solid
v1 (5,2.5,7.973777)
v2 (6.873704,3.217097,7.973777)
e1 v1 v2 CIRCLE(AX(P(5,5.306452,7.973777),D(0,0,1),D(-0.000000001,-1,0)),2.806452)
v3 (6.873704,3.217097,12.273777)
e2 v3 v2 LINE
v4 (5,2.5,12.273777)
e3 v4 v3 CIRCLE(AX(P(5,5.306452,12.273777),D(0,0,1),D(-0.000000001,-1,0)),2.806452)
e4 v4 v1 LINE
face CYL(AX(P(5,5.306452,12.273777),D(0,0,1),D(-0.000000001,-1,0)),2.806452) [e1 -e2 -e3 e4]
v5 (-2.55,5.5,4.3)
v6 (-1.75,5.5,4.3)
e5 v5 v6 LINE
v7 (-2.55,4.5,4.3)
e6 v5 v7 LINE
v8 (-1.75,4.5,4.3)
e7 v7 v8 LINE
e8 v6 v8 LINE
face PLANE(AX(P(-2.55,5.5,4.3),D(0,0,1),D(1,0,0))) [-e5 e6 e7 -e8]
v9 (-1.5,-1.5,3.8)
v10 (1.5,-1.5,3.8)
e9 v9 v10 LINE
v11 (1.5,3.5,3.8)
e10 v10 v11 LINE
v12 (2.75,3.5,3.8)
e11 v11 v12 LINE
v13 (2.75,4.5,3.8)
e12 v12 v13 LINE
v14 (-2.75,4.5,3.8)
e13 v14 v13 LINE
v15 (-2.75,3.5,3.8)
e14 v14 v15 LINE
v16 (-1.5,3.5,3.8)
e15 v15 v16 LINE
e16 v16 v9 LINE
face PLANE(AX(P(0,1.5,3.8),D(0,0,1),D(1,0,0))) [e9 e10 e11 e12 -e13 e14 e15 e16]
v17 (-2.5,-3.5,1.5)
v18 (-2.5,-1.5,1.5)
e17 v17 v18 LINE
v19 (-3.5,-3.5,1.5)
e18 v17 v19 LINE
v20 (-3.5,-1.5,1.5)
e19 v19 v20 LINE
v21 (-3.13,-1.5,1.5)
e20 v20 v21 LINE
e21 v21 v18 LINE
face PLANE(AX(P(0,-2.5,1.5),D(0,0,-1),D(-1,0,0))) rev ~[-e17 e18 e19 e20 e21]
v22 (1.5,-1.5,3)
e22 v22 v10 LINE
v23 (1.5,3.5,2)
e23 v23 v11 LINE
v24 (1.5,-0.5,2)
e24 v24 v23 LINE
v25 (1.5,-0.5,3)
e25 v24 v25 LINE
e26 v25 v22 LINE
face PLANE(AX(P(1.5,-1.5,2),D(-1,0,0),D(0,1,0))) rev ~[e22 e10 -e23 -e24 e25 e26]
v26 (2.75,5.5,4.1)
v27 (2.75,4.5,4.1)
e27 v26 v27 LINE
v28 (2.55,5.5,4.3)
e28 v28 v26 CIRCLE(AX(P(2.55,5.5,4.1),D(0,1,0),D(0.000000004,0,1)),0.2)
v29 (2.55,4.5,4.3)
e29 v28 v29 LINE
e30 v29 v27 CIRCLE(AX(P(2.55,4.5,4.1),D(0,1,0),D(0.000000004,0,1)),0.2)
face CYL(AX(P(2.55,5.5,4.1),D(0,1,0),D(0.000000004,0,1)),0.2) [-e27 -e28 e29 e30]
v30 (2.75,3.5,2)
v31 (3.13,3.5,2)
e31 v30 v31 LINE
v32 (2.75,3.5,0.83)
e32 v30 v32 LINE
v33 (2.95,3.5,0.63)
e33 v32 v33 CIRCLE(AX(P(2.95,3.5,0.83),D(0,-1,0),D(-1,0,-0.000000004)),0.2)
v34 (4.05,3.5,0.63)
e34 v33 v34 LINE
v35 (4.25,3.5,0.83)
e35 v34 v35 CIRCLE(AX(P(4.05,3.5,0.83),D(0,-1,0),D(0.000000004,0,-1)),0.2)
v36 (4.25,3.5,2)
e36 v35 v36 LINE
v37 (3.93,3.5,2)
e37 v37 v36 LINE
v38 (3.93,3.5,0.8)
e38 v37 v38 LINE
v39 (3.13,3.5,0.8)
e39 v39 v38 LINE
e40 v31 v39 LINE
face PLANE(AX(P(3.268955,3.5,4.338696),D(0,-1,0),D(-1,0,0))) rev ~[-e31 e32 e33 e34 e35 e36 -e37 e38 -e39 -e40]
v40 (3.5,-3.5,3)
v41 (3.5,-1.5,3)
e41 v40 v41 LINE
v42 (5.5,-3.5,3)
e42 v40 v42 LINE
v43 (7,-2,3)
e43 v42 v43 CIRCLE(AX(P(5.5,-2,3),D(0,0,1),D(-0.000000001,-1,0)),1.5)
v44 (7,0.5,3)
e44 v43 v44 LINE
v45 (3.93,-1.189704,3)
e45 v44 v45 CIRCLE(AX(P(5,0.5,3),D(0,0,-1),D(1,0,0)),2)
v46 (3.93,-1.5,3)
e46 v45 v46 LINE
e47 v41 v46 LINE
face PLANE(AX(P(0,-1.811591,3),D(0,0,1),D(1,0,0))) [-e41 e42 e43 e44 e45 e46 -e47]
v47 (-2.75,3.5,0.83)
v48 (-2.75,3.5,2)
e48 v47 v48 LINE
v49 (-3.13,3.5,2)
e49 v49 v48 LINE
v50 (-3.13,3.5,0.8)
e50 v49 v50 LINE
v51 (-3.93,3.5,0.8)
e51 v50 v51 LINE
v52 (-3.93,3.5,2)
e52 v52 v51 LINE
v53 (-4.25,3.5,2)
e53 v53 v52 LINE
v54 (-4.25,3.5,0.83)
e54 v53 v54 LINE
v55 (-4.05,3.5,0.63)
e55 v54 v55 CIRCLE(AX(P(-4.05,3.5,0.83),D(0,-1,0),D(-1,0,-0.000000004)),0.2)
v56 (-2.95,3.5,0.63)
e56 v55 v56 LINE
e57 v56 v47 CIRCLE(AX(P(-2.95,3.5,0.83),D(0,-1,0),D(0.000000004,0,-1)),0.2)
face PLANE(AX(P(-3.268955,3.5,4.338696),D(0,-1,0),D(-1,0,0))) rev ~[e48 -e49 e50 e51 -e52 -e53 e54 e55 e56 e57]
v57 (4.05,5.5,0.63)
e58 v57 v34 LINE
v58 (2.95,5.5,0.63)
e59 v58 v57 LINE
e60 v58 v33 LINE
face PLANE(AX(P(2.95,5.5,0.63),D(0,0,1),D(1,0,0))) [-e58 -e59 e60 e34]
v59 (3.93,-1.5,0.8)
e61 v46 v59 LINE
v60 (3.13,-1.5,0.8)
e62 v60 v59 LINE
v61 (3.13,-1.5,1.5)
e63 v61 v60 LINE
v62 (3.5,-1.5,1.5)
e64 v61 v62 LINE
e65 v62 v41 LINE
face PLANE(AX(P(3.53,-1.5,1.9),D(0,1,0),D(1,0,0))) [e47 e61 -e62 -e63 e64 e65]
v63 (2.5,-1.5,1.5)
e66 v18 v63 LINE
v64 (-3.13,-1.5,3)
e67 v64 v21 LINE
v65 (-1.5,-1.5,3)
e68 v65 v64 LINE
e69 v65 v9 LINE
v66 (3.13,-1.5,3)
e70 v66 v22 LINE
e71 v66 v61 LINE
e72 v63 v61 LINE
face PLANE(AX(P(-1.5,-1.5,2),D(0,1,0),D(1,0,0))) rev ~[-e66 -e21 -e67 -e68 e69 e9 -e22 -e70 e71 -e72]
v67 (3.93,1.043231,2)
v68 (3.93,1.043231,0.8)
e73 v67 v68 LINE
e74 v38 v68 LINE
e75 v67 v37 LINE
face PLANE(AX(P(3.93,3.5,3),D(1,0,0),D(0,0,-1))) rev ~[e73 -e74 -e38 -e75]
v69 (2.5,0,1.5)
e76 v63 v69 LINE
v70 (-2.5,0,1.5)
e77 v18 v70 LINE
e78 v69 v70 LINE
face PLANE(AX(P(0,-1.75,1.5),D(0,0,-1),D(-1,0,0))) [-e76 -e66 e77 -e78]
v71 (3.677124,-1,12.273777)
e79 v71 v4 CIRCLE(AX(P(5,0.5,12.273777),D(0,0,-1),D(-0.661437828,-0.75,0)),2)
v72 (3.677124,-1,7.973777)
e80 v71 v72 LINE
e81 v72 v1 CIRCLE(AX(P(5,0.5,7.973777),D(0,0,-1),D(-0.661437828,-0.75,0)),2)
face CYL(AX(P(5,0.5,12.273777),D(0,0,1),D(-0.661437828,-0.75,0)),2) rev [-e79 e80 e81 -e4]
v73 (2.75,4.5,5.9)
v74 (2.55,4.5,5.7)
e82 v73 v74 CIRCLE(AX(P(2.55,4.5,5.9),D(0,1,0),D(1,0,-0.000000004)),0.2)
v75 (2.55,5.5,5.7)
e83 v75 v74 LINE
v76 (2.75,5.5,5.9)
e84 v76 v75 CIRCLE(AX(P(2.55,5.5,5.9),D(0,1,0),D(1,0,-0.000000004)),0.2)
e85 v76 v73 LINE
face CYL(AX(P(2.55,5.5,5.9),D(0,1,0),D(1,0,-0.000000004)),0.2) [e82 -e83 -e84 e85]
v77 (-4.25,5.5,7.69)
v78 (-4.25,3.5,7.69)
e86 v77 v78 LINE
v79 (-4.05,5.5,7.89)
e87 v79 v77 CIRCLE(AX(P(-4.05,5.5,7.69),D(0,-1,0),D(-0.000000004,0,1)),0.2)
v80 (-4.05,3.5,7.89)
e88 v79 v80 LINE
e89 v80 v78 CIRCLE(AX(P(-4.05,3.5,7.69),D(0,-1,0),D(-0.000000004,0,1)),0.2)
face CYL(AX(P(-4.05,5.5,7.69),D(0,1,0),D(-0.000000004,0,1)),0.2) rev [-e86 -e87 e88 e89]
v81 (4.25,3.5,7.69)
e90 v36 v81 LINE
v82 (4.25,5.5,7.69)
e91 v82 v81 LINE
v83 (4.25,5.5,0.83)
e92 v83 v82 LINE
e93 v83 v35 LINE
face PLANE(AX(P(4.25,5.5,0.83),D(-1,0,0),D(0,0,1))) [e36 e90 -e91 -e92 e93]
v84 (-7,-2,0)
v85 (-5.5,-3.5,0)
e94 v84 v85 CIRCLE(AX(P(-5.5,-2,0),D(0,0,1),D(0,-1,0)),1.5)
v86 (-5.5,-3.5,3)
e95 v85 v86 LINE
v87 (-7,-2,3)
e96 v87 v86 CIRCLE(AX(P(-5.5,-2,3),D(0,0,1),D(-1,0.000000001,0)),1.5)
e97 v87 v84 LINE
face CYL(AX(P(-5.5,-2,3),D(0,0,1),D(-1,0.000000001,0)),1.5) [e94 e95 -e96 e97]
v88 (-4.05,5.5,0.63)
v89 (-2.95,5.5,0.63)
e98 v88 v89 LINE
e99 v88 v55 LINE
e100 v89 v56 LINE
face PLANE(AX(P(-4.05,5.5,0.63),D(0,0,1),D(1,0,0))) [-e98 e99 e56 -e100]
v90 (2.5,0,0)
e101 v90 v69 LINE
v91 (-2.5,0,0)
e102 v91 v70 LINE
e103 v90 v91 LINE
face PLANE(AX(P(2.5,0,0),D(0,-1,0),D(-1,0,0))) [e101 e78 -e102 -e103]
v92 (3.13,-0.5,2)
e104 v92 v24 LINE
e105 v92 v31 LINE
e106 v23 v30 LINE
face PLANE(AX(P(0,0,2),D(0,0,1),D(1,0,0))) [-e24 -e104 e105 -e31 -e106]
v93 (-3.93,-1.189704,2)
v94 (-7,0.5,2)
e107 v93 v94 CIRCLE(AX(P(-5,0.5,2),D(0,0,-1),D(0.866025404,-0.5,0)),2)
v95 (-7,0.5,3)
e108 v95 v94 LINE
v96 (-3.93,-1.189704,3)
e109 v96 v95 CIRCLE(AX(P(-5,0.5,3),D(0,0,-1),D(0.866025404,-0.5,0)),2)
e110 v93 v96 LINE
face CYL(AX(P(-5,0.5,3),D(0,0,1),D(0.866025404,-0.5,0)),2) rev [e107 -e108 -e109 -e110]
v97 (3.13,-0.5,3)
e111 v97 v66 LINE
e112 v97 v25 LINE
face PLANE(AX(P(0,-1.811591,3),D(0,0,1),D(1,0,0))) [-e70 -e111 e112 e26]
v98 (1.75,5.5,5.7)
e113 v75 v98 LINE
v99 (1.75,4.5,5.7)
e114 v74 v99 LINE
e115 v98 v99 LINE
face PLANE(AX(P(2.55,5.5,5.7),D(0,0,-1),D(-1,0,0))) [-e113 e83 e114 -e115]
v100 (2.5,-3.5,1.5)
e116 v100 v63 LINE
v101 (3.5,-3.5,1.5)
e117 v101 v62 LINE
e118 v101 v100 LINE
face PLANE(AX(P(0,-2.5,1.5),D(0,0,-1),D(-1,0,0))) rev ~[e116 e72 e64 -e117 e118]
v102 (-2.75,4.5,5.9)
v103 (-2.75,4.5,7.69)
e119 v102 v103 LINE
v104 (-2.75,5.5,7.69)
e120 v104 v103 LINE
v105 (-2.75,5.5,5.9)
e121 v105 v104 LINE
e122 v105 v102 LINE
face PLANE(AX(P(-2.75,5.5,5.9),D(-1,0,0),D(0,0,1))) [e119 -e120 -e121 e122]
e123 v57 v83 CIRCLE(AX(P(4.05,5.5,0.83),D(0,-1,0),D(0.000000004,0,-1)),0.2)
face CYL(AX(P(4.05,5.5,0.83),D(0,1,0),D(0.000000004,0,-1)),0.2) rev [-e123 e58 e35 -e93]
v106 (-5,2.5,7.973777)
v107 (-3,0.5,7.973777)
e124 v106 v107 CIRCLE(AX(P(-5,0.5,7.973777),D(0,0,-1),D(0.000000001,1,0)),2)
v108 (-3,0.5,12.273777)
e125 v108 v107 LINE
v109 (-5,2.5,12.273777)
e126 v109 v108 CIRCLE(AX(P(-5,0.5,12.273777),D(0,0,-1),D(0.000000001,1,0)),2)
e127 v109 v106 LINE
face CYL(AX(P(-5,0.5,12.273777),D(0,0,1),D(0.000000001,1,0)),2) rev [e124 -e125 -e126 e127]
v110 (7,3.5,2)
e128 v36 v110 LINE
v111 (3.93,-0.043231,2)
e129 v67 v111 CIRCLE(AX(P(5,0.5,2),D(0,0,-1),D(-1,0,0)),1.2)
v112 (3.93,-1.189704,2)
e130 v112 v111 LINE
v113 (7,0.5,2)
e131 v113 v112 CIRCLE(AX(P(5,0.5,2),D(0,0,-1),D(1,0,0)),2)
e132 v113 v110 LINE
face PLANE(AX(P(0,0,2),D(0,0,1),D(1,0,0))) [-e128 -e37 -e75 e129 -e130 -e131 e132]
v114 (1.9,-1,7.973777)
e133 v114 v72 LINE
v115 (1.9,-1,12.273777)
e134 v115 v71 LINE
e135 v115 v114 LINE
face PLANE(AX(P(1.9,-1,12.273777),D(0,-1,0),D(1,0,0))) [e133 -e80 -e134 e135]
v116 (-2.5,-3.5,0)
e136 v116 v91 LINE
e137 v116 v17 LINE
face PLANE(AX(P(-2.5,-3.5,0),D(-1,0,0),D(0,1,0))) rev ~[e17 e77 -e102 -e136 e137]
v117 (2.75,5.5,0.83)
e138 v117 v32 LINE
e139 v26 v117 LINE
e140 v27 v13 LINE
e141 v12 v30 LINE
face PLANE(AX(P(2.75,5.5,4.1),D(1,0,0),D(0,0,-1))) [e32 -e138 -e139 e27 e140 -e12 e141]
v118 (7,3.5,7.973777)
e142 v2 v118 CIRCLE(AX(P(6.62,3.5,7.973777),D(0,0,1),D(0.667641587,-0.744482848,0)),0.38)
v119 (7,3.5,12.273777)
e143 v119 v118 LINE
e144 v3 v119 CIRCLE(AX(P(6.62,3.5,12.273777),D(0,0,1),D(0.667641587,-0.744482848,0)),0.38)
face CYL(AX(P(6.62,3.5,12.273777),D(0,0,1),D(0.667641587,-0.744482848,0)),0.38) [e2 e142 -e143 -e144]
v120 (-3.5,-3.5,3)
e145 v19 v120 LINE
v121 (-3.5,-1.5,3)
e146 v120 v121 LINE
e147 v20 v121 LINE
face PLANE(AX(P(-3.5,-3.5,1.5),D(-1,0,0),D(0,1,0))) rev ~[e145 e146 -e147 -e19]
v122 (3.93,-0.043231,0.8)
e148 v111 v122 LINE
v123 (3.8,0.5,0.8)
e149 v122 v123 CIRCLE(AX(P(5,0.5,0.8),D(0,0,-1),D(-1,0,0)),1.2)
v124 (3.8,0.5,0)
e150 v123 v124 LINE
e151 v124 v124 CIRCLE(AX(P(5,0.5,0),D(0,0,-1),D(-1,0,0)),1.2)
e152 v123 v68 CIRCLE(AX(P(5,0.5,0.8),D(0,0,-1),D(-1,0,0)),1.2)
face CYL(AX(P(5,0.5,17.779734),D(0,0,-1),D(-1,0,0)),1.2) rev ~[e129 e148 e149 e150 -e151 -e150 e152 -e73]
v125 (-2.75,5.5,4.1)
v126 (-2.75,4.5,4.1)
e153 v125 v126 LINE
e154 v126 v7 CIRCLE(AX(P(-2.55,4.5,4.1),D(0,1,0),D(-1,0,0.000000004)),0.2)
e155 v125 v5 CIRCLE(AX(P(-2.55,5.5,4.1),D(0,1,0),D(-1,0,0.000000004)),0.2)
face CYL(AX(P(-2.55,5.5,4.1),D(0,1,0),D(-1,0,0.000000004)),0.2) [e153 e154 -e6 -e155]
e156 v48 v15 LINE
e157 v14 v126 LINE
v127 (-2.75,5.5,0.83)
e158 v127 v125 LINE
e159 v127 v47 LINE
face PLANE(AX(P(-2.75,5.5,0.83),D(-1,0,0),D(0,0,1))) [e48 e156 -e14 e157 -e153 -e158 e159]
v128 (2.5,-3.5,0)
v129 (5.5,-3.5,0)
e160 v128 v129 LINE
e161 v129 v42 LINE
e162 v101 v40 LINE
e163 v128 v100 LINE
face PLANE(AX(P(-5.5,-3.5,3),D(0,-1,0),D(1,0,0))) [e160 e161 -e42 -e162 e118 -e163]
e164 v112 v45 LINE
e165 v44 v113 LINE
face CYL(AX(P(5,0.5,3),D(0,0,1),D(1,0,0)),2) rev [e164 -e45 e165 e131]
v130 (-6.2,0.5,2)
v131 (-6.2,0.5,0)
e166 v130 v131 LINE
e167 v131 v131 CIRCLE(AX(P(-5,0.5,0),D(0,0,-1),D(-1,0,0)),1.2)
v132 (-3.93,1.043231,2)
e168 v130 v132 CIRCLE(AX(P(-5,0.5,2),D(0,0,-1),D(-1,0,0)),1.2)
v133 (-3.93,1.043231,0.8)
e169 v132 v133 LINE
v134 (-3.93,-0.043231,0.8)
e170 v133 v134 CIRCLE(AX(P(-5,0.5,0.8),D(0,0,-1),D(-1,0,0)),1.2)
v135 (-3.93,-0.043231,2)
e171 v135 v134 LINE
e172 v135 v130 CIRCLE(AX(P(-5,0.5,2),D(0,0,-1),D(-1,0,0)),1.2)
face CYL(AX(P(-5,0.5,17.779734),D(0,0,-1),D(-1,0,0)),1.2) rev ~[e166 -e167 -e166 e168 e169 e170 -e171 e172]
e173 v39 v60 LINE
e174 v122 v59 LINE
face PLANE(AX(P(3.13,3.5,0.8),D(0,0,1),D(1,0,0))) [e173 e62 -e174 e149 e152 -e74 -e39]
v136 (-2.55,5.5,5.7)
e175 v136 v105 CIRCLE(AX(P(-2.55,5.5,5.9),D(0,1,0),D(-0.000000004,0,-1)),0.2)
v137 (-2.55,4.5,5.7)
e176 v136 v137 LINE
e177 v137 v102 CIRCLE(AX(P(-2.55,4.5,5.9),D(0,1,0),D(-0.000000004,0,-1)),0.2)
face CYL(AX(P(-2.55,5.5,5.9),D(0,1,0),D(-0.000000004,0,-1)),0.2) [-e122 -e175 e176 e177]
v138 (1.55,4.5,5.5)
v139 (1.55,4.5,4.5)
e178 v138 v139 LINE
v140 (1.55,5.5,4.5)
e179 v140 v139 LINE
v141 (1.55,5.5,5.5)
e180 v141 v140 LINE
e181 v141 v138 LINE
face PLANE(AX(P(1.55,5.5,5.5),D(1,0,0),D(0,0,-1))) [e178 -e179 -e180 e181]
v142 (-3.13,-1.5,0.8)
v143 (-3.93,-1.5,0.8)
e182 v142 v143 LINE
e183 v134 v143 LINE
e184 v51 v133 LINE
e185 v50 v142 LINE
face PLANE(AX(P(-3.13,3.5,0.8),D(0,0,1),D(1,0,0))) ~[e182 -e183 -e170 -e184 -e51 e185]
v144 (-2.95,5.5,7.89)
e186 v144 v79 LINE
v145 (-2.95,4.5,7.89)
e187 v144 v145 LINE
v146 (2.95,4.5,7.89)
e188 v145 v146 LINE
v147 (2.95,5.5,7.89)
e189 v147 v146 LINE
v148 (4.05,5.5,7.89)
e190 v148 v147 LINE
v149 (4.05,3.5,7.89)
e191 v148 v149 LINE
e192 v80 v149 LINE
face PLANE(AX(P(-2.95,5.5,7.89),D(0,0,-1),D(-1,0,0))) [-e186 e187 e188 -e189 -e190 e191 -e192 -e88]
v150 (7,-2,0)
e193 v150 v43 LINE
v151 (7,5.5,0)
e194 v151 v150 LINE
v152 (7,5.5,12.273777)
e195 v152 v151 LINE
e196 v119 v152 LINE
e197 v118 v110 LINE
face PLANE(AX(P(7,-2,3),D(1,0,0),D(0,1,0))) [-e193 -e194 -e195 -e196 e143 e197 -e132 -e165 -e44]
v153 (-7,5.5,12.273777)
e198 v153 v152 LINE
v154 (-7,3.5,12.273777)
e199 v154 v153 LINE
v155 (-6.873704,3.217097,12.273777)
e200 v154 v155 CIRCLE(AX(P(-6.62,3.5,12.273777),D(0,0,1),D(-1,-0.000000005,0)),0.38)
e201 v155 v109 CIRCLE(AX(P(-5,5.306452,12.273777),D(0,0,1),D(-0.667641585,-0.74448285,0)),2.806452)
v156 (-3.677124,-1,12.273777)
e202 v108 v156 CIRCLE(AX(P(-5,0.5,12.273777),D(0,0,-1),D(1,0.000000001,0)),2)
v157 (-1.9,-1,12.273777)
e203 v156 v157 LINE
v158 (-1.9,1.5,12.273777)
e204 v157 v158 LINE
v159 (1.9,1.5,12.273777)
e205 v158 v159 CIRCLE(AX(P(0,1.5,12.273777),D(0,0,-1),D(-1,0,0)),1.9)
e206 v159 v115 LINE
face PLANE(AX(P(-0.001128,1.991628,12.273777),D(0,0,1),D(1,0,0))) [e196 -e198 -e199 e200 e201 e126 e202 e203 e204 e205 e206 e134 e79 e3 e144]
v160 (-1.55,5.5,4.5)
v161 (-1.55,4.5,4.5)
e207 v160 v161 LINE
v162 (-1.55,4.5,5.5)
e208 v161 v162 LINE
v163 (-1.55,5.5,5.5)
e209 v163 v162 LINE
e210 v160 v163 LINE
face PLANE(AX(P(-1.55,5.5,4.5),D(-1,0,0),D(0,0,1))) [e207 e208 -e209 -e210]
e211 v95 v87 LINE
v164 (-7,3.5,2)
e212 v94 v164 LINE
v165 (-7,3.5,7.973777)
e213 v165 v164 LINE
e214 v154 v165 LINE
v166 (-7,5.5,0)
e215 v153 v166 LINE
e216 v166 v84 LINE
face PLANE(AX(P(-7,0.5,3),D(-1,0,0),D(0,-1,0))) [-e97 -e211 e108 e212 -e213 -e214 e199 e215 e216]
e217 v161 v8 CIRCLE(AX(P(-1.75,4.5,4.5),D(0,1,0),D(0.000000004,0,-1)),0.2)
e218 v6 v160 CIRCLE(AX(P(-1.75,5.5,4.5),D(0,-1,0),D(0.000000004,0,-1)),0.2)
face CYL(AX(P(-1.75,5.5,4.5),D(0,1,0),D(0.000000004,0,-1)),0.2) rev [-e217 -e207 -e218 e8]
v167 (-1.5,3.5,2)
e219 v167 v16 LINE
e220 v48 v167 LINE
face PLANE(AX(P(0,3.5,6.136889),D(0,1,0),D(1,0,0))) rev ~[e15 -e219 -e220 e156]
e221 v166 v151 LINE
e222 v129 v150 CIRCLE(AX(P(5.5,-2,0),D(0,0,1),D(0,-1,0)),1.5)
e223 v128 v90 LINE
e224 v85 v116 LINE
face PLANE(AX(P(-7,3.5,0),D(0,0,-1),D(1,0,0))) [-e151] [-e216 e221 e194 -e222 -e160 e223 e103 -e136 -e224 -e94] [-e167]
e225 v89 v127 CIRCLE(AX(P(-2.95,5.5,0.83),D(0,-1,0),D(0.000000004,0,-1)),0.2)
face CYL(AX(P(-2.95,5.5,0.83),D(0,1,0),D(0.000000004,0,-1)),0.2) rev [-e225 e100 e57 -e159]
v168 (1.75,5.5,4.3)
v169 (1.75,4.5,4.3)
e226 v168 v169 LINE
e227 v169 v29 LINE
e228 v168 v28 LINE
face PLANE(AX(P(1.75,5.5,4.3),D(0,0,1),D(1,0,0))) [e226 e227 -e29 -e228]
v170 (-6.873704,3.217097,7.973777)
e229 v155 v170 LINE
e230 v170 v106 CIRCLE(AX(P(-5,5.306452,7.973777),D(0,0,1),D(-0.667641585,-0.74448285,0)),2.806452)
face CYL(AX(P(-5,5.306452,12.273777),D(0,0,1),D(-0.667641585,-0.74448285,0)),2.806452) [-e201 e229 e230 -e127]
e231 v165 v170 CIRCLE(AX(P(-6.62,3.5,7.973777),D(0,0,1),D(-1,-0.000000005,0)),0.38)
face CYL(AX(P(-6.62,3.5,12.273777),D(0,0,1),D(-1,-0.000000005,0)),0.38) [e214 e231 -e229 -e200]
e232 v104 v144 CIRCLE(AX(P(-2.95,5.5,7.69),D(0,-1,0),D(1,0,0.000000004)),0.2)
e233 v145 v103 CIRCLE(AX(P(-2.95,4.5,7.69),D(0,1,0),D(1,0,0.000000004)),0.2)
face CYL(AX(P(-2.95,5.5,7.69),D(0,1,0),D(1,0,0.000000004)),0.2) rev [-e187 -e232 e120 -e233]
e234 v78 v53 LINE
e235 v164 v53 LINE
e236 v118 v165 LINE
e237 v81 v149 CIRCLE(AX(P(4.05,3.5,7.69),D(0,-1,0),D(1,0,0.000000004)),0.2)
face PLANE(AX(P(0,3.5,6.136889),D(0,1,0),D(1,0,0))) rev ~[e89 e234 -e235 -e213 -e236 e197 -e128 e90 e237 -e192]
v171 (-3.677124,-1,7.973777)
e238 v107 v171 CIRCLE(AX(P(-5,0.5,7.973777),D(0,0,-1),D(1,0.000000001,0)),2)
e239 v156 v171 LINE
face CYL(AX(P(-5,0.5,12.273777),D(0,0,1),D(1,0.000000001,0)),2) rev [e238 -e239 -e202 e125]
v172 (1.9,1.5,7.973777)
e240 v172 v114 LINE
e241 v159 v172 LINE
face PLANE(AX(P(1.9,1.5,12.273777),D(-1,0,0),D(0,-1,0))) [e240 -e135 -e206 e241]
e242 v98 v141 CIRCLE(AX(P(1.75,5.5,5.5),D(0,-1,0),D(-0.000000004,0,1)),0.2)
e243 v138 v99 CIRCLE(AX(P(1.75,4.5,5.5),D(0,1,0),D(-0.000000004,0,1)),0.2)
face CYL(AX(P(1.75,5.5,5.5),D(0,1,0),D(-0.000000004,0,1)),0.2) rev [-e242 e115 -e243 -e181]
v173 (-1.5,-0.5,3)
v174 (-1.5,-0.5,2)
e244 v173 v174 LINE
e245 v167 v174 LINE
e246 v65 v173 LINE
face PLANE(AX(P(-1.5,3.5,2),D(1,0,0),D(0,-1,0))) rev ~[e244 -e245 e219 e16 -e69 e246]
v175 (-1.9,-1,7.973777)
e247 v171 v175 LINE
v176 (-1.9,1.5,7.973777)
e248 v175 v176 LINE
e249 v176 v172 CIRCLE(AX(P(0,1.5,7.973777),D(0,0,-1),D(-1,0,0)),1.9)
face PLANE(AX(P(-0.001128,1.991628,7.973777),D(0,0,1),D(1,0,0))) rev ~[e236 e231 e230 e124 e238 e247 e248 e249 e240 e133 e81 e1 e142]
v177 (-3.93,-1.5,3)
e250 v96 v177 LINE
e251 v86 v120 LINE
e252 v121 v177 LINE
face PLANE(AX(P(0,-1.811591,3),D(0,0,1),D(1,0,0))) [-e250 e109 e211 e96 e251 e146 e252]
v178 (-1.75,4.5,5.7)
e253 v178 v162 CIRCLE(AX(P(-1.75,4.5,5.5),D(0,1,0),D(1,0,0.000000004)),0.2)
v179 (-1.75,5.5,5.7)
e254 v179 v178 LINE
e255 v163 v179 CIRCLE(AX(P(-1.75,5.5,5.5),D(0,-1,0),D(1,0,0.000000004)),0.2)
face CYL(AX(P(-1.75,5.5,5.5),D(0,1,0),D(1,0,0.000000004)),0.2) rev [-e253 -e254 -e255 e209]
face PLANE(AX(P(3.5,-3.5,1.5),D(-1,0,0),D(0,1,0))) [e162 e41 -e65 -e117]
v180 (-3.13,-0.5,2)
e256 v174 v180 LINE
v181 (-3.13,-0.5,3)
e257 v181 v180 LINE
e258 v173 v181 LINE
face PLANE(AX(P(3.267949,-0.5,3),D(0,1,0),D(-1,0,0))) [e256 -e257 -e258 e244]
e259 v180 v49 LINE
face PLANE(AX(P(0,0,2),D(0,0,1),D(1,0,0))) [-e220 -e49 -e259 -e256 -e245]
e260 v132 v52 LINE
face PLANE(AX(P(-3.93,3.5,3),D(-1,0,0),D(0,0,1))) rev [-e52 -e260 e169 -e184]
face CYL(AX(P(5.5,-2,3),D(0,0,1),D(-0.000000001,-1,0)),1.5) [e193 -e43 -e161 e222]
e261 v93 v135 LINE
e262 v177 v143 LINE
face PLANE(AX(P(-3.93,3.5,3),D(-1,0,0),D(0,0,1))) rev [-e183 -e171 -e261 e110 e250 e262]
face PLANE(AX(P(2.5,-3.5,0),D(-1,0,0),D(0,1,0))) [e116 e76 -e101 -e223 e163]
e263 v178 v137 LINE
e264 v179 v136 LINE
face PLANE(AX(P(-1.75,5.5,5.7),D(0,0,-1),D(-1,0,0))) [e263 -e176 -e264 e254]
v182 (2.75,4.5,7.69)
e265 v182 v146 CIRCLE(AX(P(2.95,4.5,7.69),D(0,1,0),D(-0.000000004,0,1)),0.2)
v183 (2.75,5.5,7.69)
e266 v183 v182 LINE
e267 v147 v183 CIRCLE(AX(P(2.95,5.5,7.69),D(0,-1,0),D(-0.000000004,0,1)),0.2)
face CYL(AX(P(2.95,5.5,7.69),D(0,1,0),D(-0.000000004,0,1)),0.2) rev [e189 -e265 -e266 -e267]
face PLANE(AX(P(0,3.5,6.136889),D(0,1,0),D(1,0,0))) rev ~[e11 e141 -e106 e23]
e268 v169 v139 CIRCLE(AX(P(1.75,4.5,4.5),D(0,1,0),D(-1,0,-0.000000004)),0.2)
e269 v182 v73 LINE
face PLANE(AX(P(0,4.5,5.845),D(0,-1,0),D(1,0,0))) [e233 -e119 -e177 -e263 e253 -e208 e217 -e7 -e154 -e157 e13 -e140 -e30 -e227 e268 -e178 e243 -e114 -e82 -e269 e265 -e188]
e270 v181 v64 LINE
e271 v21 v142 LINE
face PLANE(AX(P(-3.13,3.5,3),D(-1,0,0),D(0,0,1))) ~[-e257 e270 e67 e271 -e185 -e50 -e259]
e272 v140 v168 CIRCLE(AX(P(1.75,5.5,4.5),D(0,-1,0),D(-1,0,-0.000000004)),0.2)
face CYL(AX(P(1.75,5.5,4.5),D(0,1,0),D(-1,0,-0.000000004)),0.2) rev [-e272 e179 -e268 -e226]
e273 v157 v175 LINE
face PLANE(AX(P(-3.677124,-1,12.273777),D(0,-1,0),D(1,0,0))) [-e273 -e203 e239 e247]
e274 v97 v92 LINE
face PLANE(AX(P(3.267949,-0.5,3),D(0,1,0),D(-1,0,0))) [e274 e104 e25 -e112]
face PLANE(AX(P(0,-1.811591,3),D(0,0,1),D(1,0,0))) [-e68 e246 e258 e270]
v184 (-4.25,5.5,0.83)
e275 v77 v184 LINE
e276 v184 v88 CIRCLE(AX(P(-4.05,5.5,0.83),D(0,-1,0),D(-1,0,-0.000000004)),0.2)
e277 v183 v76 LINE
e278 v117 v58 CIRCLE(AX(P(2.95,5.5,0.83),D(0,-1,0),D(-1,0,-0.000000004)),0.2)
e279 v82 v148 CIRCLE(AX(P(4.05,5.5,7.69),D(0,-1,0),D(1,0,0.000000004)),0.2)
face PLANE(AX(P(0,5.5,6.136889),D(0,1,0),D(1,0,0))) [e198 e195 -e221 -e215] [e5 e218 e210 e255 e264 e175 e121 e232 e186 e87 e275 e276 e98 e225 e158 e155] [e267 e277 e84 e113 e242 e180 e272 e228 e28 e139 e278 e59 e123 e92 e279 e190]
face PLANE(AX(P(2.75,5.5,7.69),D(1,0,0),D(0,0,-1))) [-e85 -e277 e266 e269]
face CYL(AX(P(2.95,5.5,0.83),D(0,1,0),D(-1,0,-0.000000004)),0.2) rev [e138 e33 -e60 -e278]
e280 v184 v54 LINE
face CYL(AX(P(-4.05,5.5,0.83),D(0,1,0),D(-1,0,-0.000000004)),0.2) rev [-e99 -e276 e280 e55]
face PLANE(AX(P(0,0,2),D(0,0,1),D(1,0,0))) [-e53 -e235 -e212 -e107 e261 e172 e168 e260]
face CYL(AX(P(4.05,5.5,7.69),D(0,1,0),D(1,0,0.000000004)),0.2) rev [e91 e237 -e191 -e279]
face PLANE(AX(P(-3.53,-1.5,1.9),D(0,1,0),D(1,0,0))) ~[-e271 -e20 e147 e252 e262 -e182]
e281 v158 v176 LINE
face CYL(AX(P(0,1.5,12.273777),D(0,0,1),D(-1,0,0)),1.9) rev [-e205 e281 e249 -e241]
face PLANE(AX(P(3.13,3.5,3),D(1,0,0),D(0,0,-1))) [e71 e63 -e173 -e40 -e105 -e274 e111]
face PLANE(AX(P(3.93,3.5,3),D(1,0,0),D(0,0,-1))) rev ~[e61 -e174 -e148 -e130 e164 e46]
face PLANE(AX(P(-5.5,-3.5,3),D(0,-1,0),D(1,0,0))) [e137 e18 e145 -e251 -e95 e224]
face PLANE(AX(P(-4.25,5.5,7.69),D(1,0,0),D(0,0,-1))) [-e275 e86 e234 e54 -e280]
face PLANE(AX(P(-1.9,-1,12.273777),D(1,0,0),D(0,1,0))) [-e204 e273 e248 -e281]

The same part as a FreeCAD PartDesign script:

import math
import FreeCAD as App
import Part
import Sketcher
from FreeCAD import Vector


def edges_at(feature, points):
    """Names of the edges that pass closest to the given points."""
    edges = feature.Shape.Edges
    near = lambda p: min(range(len(edges)), key=lambda i: edges[i].distToShape(Part.Vertex(*p))[0])
    return sorted({f"Edge{near(p) + 1}" for p in points})

doc = App.newDocument("Part")
body = doc.addObject("PartDesign::Body", "Body")

sketch1 = body.newObject("Sketcher::SketchObject", "Sketch")
sketch1.AttachmentSupport = (doc.getObject("XY_Plane"), [""])
sketch1.MapMode = "FlatFace"
sketch1.addGeometry([
    Part.LineSegment(Vector(-7, 3.5, 0), Vector(-7, -3.5, 0)),
    Part.LineSegment(Vector(-7, -3.5, 0), Vector(7, -3.5, 0)),
    Part.LineSegment(Vector(7, -3.5, 0), Vector(7, 3.5, 0)),
    Part.LineSegment(Vector(7, 3.5, 0), Vector(-7, 3.5, 0)),
], False)
sketch1.addConstraint([
    Sketcher.Constraint("Coincident", 0, 2, 1, 1),
    Sketcher.Constraint("Coincident", 1, 2, 2, 1),
    Sketcher.Constraint("Coincident", 2, 2, 3, 1),
    Sketcher.Constraint("Coincident", 3, 2, 0, 1),
    Sketcher.Constraint("Vertical", 0),
    Sketcher.Constraint("Horizontal", 1),
    Sketcher.Constraint("Vertical", 2),
    Sketcher.Constraint("Horizontal", 3),
    Sketcher.Constraint("Symmetric", 0, 2, 2, 2, -1, 1),
    Sketcher.Constraint("DistanceX", 1, 1, 1, 2, 14.0),
    Sketcher.Constraint("DistanceY", 0, 2, 0, 1, 7.0),
])
pad1 = body.newObject("PartDesign::Pad", "Pad")
pad1.Profile = sketch1
pad1.Length = 2
doc.recompute()

fillet = body.newObject("PartDesign::Fillet", "Fillet")
fillet.Base = (pad1, edges_at(pad1, [(7, -3.5, 1), (-7, -3.5, 1)]))
fillet.Radius = 1.5

sketch2 = body.newObject("Sketcher::SketchObject", "Sketch001")
sketch2.AttachmentSupport = (doc.getObject("XY_Plane"), [""])
sketch2.MapMode = "FlatFace"
sketch2.AttachmentOffset = App.Placement(Vector(0, 0, 2), App.Rotation())
sketch2.addGeometry([
    Part.Circle(Vector(-5, 0.5, 0), Vector(0, 0, 1), 1.2),
    Part.Circle(Vector(5, 0.5, 0), Vector(0, 0, 1), 1.2),
], False)
sketch2.addConstraint([
    Sketcher.Constraint("Equal", 0, 1),
    Sketcher.Constraint("Symmetric", 0, 3, 1, 3, -2),
    Sketcher.Constraint("Diameter", 0, 2.4),
    Sketcher.Constraint("DistanceX", 0, 3, -1, 1, 5.0),
    Sketcher.Constraint("DistanceY", -1, 1, 0, 3, 0.5),
])
doc.recompute()
hole = body.newObject("PartDesign::Hole", "Hole")
hole.Profile = sketch2
hole.ThreadType = "None"
hole.Diameter = 2.4
hole.DepthType = "ThroughAll"

sketch3 = body.newObject("Sketcher::SketchObject", "Sketch002")
sketch3.AttachmentSupport = (doc.getObject("XZ_Plane"), [""])
sketch3.MapMode = "FlatFace"
sketch3.AttachmentOffset = App.Placement(Vector(0, 0, -3.5), App.Rotation())
sketch3.addGeometry([
    Part.LineSegment(Vector(-7, 0, 0), Vector(-7, 12.273777, 0)),
    Part.LineSegment(Vector(-7, 12.273777, 0), Vector(7, 12.273777, 0)),
    Part.LineSegment(Vector(7, 12.273777, 0), Vector(7, 0, 0)),
    Part.LineSegment(Vector(7, 0, 0), Vector(-7, 0, 0)),
], False)
sketch3.addConstraint([
    Sketcher.Constraint("Coincident", 0, 2, 1, 1),
    Sketcher.Constraint("Coincident", 1, 2, 2, 1),
    Sketcher.Constraint("Coincident", 2, 2, 3, 1),
    Sketcher.Constraint("Coincident", 3, 2, 0, 1),
    Sketcher.Constraint("Vertical", 0),
    Sketcher.Constraint("Horizontal", 1),
    Sketcher.Constraint("Vertical", 2),
    Sketcher.Constraint("Horizontal", 3),
    Sketcher.Constraint("Symmetric", 2, 2, 3, 2, -1, 1),
    Sketcher.Constraint("DistanceX", 1, 1, 1, 2, 14.0),
    Sketcher.Constraint("DistanceY", 0, 1, 0, 2, 12.273777),
])
pad2 = body.newObject("PartDesign::Pad", "Pad001")
pad2.Profile = sketch3
pad2.Length = 2
pad2.Reversed = True

sketch4 = body.newObject("Sketcher::SketchObject", "Sketch003")
sketch4.AttachmentSupport = (doc.getObject("XY_Plane"), [""])
sketch4.MapMode = "FlatFace"
sketch4.AttachmentOffset = App.Placement(Vector(0, 0, 3), App.Rotation())
sketch4.addGeometry([
    Part.ArcOfCircle(Part.Circle(Vector(-5.5, -2, 0), Vector(0, 0, 1), 1.5), math.radians(180), math.radians(270)),
    Part.LineSegment(Vector(-5.5, -3.5, 0), Vector(5.5, -3.5, 0)),
    Part.ArcOfCircle(Part.Circle(Vector(5.5, -2, 0), Vector(0, 0, 1), 1.5), math.radians(-90), math.radians(0)),
    Part.LineSegment(Vector(7, -2, 0), Vector(7, 0.5, 0)),
    Part.ArcOfCircle(Part.Circle(Vector(5, 0.5, 0), Vector(0, 0, 1), 2), math.radians(-150), math.radians(0)),
    Part.LineSegment(Vector(3.267949, -0.5, 0), Vector(-3.267949, -0.5, 0)),
    Part.ArcOfCircle(Part.Circle(Vector(-5, 0.5, 0), Vector(0, 0, 1), 2), math.radians(180), math.radians(330)),
    Part.LineSegment(Vector(-7, 0.5, 0), Vector(-7, -2, 0)),
], False)
sketch4.addConstraint([
    Sketcher.Constraint("Tangent", 0, 2, 1, 1),
    Sketcher.Constraint("Tangent", 1, 2, 2, 1),
    Sketcher.Constraint("Tangent", 2, 2, 3, 1),
    Sketcher.Constraint("Tangent", 3, 2, 4, 2),
    Sketcher.Constraint("Coincident", 4, 1, 5, 1),
    Sketcher.Constraint("Coincident", 5, 2, 6, 2),
    Sketcher.Constraint("Tangent", 6, 1, 7, 1),
    Sketcher.Constraint("Tangent", 7, 2, 0, 1),
    Sketcher.Constraint("Horizontal", 1),
    Sketcher.Constraint("Vertical", 3),
    Sketcher.Constraint("Horizontal", 5),
    Sketcher.Constraint("Vertical", 7),
    Sketcher.Constraint("Equal", 0, 2),
    Sketcher.Constraint("Equal", 4, 6),
    Sketcher.Constraint("Symmetric", 4, 3, 6, 3, -2),
    Sketcher.Constraint("Radius", 4, 2.0),
    Sketcher.Constraint("Radius", 0, 1.5),
    Sketcher.Constraint("DistanceX", 1, 1, 1, 2, 11.0),
    Sketcher.Constraint("DistanceY", 3, 1, 3, 2, 2.5),
    Sketcher.Constraint("DistanceY", 0, 3, -1, 1, 2.0),
    Sketcher.Constraint("DistanceY", 4, 1, 4, 3, 1.0),
])
pad3 = body.newObject("PartDesign::Pad", "Pad002")
pad3.Profile = sketch4
pad3.Length = 1
pad3.Reversed = True

sketch5 = body.newObject("Sketcher::SketchObject", "Sketch004")
sketch5.AttachmentSupport = (doc.getObject("XY_Plane"), [""])
sketch5.MapMode = "FlatFace"
sketch5.addGeometry([
    Part.LineSegment(Vector(2.5, 0, 0), Vector(2.5, -3.5, 0)),
    Part.LineSegment(Vector(2.5, -3.5, 0), Vector(-2.5, -3.5, 0)),
    Part.LineSegment(Vector(-2.5, -3.5, 0), Vector(-2.5, 0, 0)),
    Part.LineSegment(Vector(-2.5, 0, 0), Vector(2.5, 0, 0)),
], False)
sketch5.addConstraint([
    Sketcher.Constraint("Coincident", 0, 2, 1, 1),
    Sketcher.Constraint("Coincident", 1, 2, 2, 1),
    Sketcher.Constraint("Coincident", 2, 2, 3, 1),
    Sketcher.Constraint("Coincident", 3, 2, 0, 1),
    Sketcher.Constraint("Vertical", 0),
    Sketcher.Constraint("Horizontal", 1),
    Sketcher.Constraint("Vertical", 2),
    Sketcher.Constraint("Horizontal", 3),
    Sketcher.Constraint("Symmetric", 2, 2, 3, 2, -1, 1),
    Sketcher.Constraint("DistanceX", 1, 2, 1, 1, 5.0),
    Sketcher.Constraint("DistanceY", 0, 2, 0, 1, 3.5),
])
pocket1 = body.newObject("PartDesign::Pocket", "Pocket")
pocket1.Profile = sketch5
pocket1.Length = 1.5
pocket1.Reversed = True

sketch6 = body.newObject("Sketcher::SketchObject", "Sketch005")
sketch6.AttachmentSupport = (doc.getObject("XY_Plane"), [""])
sketch6.MapMode = "FlatFace"
sketch6.AttachmentOffset = App.Placement(Vector(0, 0, 1.5), App.Rotation())
sketch6.addGeometry([
    Part.LineSegment(Vector(3.5, -1.5, 0), Vector(3.5, -3.5, 0)),
    Part.LineSegment(Vector(3.5, -3.5, 0), Vector(-3.5, -3.5, 0)),
    Part.LineSegment(Vector(-3.5, -3.5, 0), Vector(-3.5, -1.5, 0)),
    Part.LineSegment(Vector(-3.5, -1.5, 0), Vector(3.5, -1.5, 0)),
], False)
sketch6.addConstraint([
    Sketcher.Constraint("Coincident", 0, 2, 1, 1),
    Sketcher.Constraint("Coincident", 1, 2, 2, 1),
    Sketcher.Constraint("Coincident", 2, 2, 3, 1),
    Sketcher.Constraint("Coincident", 3, 2, 0, 1),
    Sketcher.Constraint("Vertical", 0),
    Sketcher.Constraint("Horizontal", 1),
    Sketcher.Constraint("Vertical", 2),
    Sketcher.Constraint("Horizontal", 3),
    Sketcher.Constraint("DistanceX", 1, 2, 1, 1, 7.0),
    Sketcher.Constraint("DistanceY", 0, 2, 0, 1, 2.0),
    Sketcher.Constraint("DistanceX", -1, 1, 0, 2, 3.5),
    Sketcher.Constraint("DistanceY", 0, 2, -1, 1, 3.5),
])
pocket2 = body.newObject("PartDesign::Pocket", "Pocket001")
pocket2.Profile = sketch6
pocket2.Type = "UpToFirst"
pocket2.Reversed = True

sketch7 = body.newObject("Sketcher::SketchObject", "Sketch006")
sketch7.AttachmentSupport = (doc.getObject("XY_Plane"), [""])
sketch7.MapMode = "FlatFace"
sketch7.AttachmentOffset = App.Placement(Vector(0, 0, 2), App.Rotation())
sketch7.addGeometry([
    Part.LineSegment(Vector(-1.5, 3.5, 0), Vector(-1.5, -1.5, 0)),
    Part.LineSegment(Vector(-1.5, -1.5, 0), Vector(1.5, -1.5, 0)),
    Part.LineSegment(Vector(1.5, -1.5, 0), Vector(1.5, 3.5, 0)),
    Part.LineSegment(Vector(1.5, 3.5, 0), Vector(-1.5, 3.5, 0)),
], False)
sketch7.addConstraint([
    Sketcher.Constraint("Coincident", 0, 2, 1, 1),
    Sketcher.Constraint("Coincident", 1, 2, 2, 1),
    Sketcher.Constraint("Coincident", 2, 2, 3, 1),
    Sketcher.Constraint("Coincident", 3, 2, 0, 1),
    Sketcher.Constraint("Vertical", 0),
    Sketcher.Constraint("Horizontal", 1),
    Sketcher.Constraint("Vertical", 2),
    Sketcher.Constraint("Horizontal", 3),
    Sketcher.Constraint("DistanceX", 1, 1, 1, 2, 3.0),
    Sketcher.Constraint("DistanceY", 0, 2, 0, 1, 5.0),
    Sketcher.Constraint("DistanceX", 0, 2, -1, 1, 1.5),
    Sketcher.Constraint("DistanceY", 0, 2, -1, 1, 1.5),
])
pad4 = body.newObject("PartDesign::Pad", "Pad003")
pad4.Profile = sketch7
pad4.Length = 1.8

sketch8 = body.newObject("Sketcher::SketchObject", "Sketch007")
sketch8.AttachmentSupport = (doc.getObject("XZ_Plane"), [""])
sketch8.MapMode = "FlatFace"
sketch8.AttachmentOffset = App.Placement(Vector(0, 0, -5.5), App.Rotation())
sketch8.addGeometry([
    Part.LineSegment(Vector(-4.05, 7.89, 0), Vector(-2.95, 7.89, 0)),
    Part.ArcOfCircle(Part.Circle(Vector(-2.95, 7.69, 0), Vector(0, 0, 1), 0.2), math.radians(0), math.radians(90)),
    Part.LineSegment(Vector(-2.75, 7.69, 0), Vector(-2.75, 5.9, 0)),
    Part.ArcOfCircle(Part.Circle(Vector(-2.55, 5.9, 0), Vector(0, 0, 1), 0.2), math.radians(-180), math.radians(-90)),
    Part.LineSegment(Vector(-2.55, 5.7, 0), Vector(-1.75, 5.7, 0)),
    Part.ArcOfCircle(Part.Circle(Vector(-1.75, 5.5, 0), Vector(0, 0, 1), 0.2), math.radians(0), math.radians(90)),
    Part.LineSegment(Vector(-1.55, 5.5, 0), Vector(-1.55, 4.5, 0)),
    Part.ArcOfCircle(Part.Circle(Vector(-1.75, 4.5, 0), Vector(0, 0, 1), 0.2), math.radians(-90), math.radians(0)),
    Part.LineSegment(Vector(-1.75, 4.3, 0), Vector(-2.55, 4.3, 0)),
    Part.ArcOfCircle(Part.Circle(Vector(-2.55, 4.1, 0), Vector(0, 0, 1), 0.2), math.radians(90), math.radians(180)),
    Part.LineSegment(Vector(-2.75, 4.1, 0), Vector(-2.75, 0.83, 0)),
    Part.ArcOfCircle(Part.Circle(Vector(-2.95, 0.83, 0), Vector(0, 0, 1), 0.2), math.radians(-90), math.radians(0)),
    Part.LineSegment(Vector(-2.95, 0.63, 0), Vector(-4.05, 0.63, 0)),
    Part.ArcOfCircle(Part.Circle(Vector(-4.05, 0.83, 0), Vector(0, 0, 1), 0.2), math.radians(-180), math.radians(-90)),
    Part.LineSegment(Vector(-4.25, 0.83, 0), Vector(-4.25, 7.69, 0)),
    Part.ArcOfCircle(Part.Circle(Vector(-4.05, 7.69, 0), Vector(0, 0, 1), 0.2), math.radians(90), math.radians(180)),
    Part.LineSegment(Vector(2.75, 0.83, 0), Vector(2.75, 4.1, 0)),
    Part.ArcOfCircle(Part.Circle(Vector(2.55, 4.1, 0), Vector(0, 0, 1), 0.2), math.radians(0), math.radians(90)),
    Part.LineSegment(Vector(2.55, 4.3, 0), Vector(1.75, 4.3, 0)),
    Part.ArcOfCircle(Part.Circle(Vector(1.75, 4.5, 0), Vector(0, 0, 1), 0.2), math.radians(-180), math.radians(-90)),
    Part.LineSegment(Vector(1.55, 4.5, 0), Vector(1.55, 5.5, 0)),
    Part.ArcOfCircle(Part.Circle(Vector(1.75, 5.5, 0), Vector(0, 0, 1), 0.2), math.radians(90), math.radians(180)),
    Part.LineSegment(Vector(1.75, 5.7, 0), Vector(2.55, 5.7, 0)),
    Part.ArcOfCircle(Part.Circle(Vector(2.55, 5.9, 0), Vector(0, 0, 1), 0.2), math.radians(-90), math.radians(0)),
    Part.LineSegment(Vector(2.75, 5.9, 0), Vector(2.75, 7.69, 0)),
    Part.ArcOfCircle(Part.Circle(Vector(2.95, 7.69, 0), Vector(0, 0, 1), 0.2), math.radians(90), math.radians(180)),
    Part.LineSegment(Vector(2.95, 7.89, 0), Vector(4.05, 7.89, 0)),
    Part.ArcOfCircle(Part.Circle(Vector(4.05, 7.69, 0), Vector(0, 0, 1), 0.2), math.radians(0), math.radians(90)),
    Part.LineSegment(Vector(4.25, 7.69, 0), Vector(4.25, 0.83, 0)),
    Part.ArcOfCircle(Part.Circle(Vector(4.05, 0.83, 0), Vector(0, 0, 1), 0.2), math.radians(-90), math.radians(0)),
    Part.LineSegment(Vector(4.05, 0.63, 0), Vector(2.95, 0.63, 0)),
    Part.ArcOfCircle(Part.Circle(Vector(2.95, 0.83, 0), Vector(0, 0, 1), 0.2), math.radians(-180), math.radians(-90)),
], False)
sketch8.addConstraint([
    Sketcher.Constraint("Tangent", 0, 2, 1, 2),
    Sketcher.Constraint("Tangent", 1, 1, 2, 1),
    Sketcher.Constraint("Tangent", 2, 2, 3, 1),
    Sketcher.Constraint("Tangent", 3, 2, 4, 1),
    Sketcher.Constraint("Tangent", 4, 2, 5, 2),
    Sketcher.Constraint("Tangent", 5, 1, 6, 1),
    Sketcher.Constraint("Tangent", 6, 2, 7, 2),
    Sketcher.Constraint("Tangent", 7, 1, 8, 1),
    Sketcher.Constraint("Tangent", 8, 2, 9, 1),
    Sketcher.Constraint("Tangent", 9, 2, 10, 1),
    Sketcher.Constraint("Tangent", 10, 2, 11, 2),
    Sketcher.Constraint("Tangent", 11, 1, 12, 1),
    Sketcher.Constraint("Tangent", 12, 2, 13, 2),
    Sketcher.Constraint("Tangent", 13, 1, 14, 1),
    Sketcher.Constraint("Tangent", 14, 2, 15, 2),
    Sketcher.Constraint("Tangent", 15, 1, 0, 1),
    Sketcher.Constraint("Tangent", 16, 2, 17, 1),
    Sketcher.Constraint("Tangent", 17, 2, 18, 1),
    Sketcher.Constraint("Tangent", 18, 2, 19, 2),
    Sketcher.Constraint("Tangent", 19, 1, 20, 1),
    Sketcher.Constraint("Tangent", 20, 2, 21, 2),
    Sketcher.Constraint("Tangent", 21, 1, 22, 1),
    Sketcher.Constraint("Tangent", 22, 2, 23, 1),
    Sketcher.Constraint("Tangent", 23, 2, 24, 1),
    Sketcher.Constraint("Tangent", 24, 2, 25, 2),
    Sketcher.Constraint("Tangent", 25, 1, 26, 1),
    Sketcher.Constraint("Tangent", 26, 2, 27, 2),
    Sketcher.Constraint("Tangent", 27, 1, 28, 1),
    Sketcher.Constraint("Tangent", 28, 2, 29, 2),
    Sketcher.Constraint("Tangent", 29, 1, 30, 1),
    Sketcher.Constraint("Tangent", 30, 2, 31, 2),
    Sketcher.Constraint("Tangent", 31, 1, 16, 1),
    Sketcher.Constraint("Horizontal", 0),
    Sketcher.Constraint("Vertical", 2),
    Sketcher.Constraint("Horizontal", 4),
    Sketcher.Constraint("Vertical", 6),
    Sketcher.Constraint("Horizontal", 8),
    Sketcher.Constraint("Vertical", 10),
    Sketcher.Constraint("Horizontal", 12),
    Sketcher.Constraint("Vertical", 14),
    Sketcher.Constraint("Vertical", 16),
    Sketcher.Constraint("Horizontal", 18),
    Sketcher.Constraint("Vertical", 20),
    Sketcher.Constraint("Horizontal", 22),
    Sketcher.Constraint("Vertical", 24),
    Sketcher.Constraint("Horizontal", 26),
    Sketcher.Constraint("Vertical", 28),
    Sketcher.Constraint("Horizontal", 30),
    Sketcher.Constraint("Equal", 1, 3),
    Sketcher.Constraint("Equal", 3, 5),
    Sketcher.Constraint("Equal", 5, 7),
    Sketcher.Constraint("Equal", 7, 9),
    Sketcher.Constraint("Equal", 9, 11),
    Sketcher.Constraint("Equal", 11, 13),
    Sketcher.Constraint("Equal", 13, 15),
    Sketcher.Constraint("Equal", 15, 17),
    Sketcher.Constraint("Equal", 17, 19),
    Sketcher.Constraint("Equal", 19, 21),
    Sketcher.Constraint("Equal", 21, 23),
    Sketcher.Constraint("Equal", 23, 25),
    Sketcher.Constraint("Equal", 25, 27),
    Sketcher.Constraint("Equal", 27, 29),
    Sketcher.Constraint("Equal", 29, 31),
    Sketcher.Constraint("Symmetric", 9, 3, 17, 3, -2),
    Sketcher.Constraint("Symmetric", 5, 3, 21, 3, -2),
    Sketcher.Constraint("Symmetric", 1, 3, 25, 3, -2),
    Sketcher.Constraint("Symmetric", 13, 3, 29, 3, -2),
    Sketcher.Constraint("Vertical", 3, 3, 9, 3),
    Sketcher.Constraint("Radius", 1, 0.2),
    Sketcher.Constraint("DistanceY", 6, 2, 6, 1, 1.0),
    Sketcher.Constraint("DistanceX", 0, 1, 0, 2, 1.1),
    Sketcher.Constraint("DistanceX", 4, 1, 4, 2, 0.8),
    Sketcher.Constraint("DistanceY", 2, 2, 2, 1, 1.79),
    Sketcher.Constraint("DistanceY", 10, 2, 10, 1, 3.27),
    Sketcher.Constraint("DistanceY", -1, 1, 3, 3, 5.9),
    Sketcher.Constraint("DistanceX", 7, 3, 17, 3, 4.3),
])
pocket3 = body.newObject("PartDesign::Pocket", "Pocket002")
pocket3.Profile = sketch8
pocket3.Length = 2
pocket3.Reversed = True

sketch9 = body.newObject("Sketcher::SketchObject", "Sketch008")
sketch9.AttachmentSupport = (doc.getObject("XZ_Plane"), [""])
sketch9.MapMode = "FlatFace"
sketch9.AttachmentOffset = App.Placement(Vector(0, 0, -3.5), App.Rotation())
sketch9.addGeometry([
    Part.LineSegment(Vector(-4.05, 7.89, 0), Vector(-4.05, 3.8, 0)),
    Part.LineSegment(Vector(-4.05, 3.8, 0), Vector(4.05, 3.8, 0)),
    Part.LineSegment(Vector(4.05, 3.8, 0), Vector(4.05, 7.89, 0)),
    Part.LineSegment(Vector(4.05, 7.89, 0), Vector(-4.05, 7.89, 0)),
], False)
sketch9.addConstraint([
    Sketcher.Constraint("Coincident", 0, 2, 1, 1),
    Sketcher.Constraint("Coincident", 1, 2, 2, 1),
    Sketcher.Constraint("Coincident", 2, 2, 3, 1),
    Sketcher.Constraint("Coincident", 3, 2, 0, 1),
    Sketcher.Constraint("Vertical", 0),
    Sketcher.Constraint("Horizontal", 1),
    Sketcher.Constraint("Vertical", 2),
    Sketcher.Constraint("Horizontal", 3),
    Sketcher.Constraint("DistanceX", 1, 1, 1, 2, 8.1),
    Sketcher.Constraint("DistanceY", 0, 2, 0, 1, 4.09),
    Sketcher.Constraint("DistanceY", -1, 1, 0, 2, 3.8),
    Sketcher.Constraint("DistanceX", 0, 2, -1, 1, 4.05),
])
pocket4 = body.newObject("PartDesign::Pocket", "Pocket003")
pocket4.Profile = sketch9
pocket4.Length = 1

sketch10 = body.newObject("Sketcher::SketchObject", "Sketch009")
sketch10.AttachmentSupport = (doc.getObject("XY_Plane"), [""])
sketch10.MapMode = "FlatFace"
sketch10.AttachmentOffset = App.Placement(Vector(0, 0, 12.273777), App.Rotation())
sketch10.addGeometry([
    Part.LineSegment(Vector(7, 3.5, 0), Vector(-7, 3.5, 0)),
    Part.ArcOfCircle(Part.Circle(Vector(-6.62, 3.5, 0), Vector(0, 0, 1), 0.38), math.radians(-180), math.radians(-131.885301)),
    Part.ArcOfCircle(Part.Circle(Vector(-5, 5.306452, 0), Vector(0, 0, 1), 2.806452), math.radians(-131.885301), math.radians(-90)),
    Part.ArcOfCircle(Part.Circle(Vector(-5, 0.5, 0), Vector(0, 0, 1), 2), math.radians(0), math.radians(90)),
    Part.ArcOfCircle(Part.Circle(Vector(-5, 0.5, 0), Vector(0, 0, 1), 2), math.radians(-48.590378), math.radians(0)),
    Part.LineSegment(Vector(-3.677124, -1, 0), Vector(-1.9, -1, 0)),
    Part.LineSegment(Vector(-1.9, -1, 0), Vector(-1.9, 1.5, 0)),
    Part.ArcOfCircle(Part.Circle(Vector(0, 1.5, 0), Vector(0, 0, 1), 1.9), math.radians(0), math.radians(180)),
    Part.LineSegment(Vector(1.9, 1.5, 0), Vector(1.9, -1, 0)),
    Part.LineSegment(Vector(1.9, -1, 0), Vector(3.677124, -1, 0)),
    Part.ArcOfCircle(Part.Circle(Vector(5, 0.5, 0), Vector(0, 0, 1), 2), math.radians(90), math.radians(228.590378)),
    Part.ArcOfCircle(Part.Circle(Vector(5, 5.306452, 0), Vector(0, 0, 1), 2.806452), math.radians(-90), math.radians(-48.114699)),
    Part.ArcOfCircle(Part.Circle(Vector(6.62, 3.5, 0), Vector(0, 0, 1), 0.38), math.radians(-48.114699), math.radians(0)),
], False)
sketch10.addConstraint([
    Sketcher.Constraint("Coincident", 0, 2, 1, 1),
    Sketcher.Constraint("Tangent", 1, 2, 2, 1),
    Sketcher.Constraint("Tangent", 2, 2, 3, 2),
    Sketcher.Constraint("Tangent", 3, 1, 4, 2),
    Sketcher.Constraint("Coincident", 4, 1, 5, 1),
    Sketcher.Constraint("Coincident", 5, 2, 6, 1),
    Sketcher.Constraint("Tangent", 6, 2, 7, 2),
    Sketcher.Constraint("Tangent", 7, 1, 8, 1),
    Sketcher.Constraint("Coincident", 8, 2, 9, 1),
    Sketcher.Constraint("Coincident", 9, 2, 10, 2),
    Sketcher.Constraint("Tangent", 10, 1, 11, 1),
    Sketcher.Constraint("Tangent", 11, 2, 12, 1),
    Sketcher.Constraint("Coincident", 12, 2, 0, 1),
    Sketcher.Constraint("Horizontal", 0),
    Sketcher.Constraint("Horizontal", 5),
    Sketcher.Constraint("Vertical", 6),
    Sketcher.Constraint("Vertical", 8),
    Sketcher.Constraint("Horizontal", 9),
    Sketcher.Constraint("Equal", 3, 4),
    Sketcher.Constraint("Equal", 4, 10),
    Sketcher.Constraint("Equal", 2, 11),
    Sketcher.Constraint("Equal", 1, 12),
    Sketcher.Constraint("Symmetric", 3, 3, 10, 3, -2),
    Sketcher.Constraint("Symmetric", 1, 3, 12, 3, -2),
    Sketcher.Constraint("Symmetric", 5, 2, 8, 2, -2),
    Sketcher.Constraint("Horizontal", 12, 3, 0, 2),
    Sketcher.Constraint("Horizontal", 10, 3, 3, 1),
    Sketcher.Constraint("Vertical", 2, 3, 3, 3),
    Sketcher.Constraint("Radius", 3, 2.0),
    Sketcher.Constraint("Radius", 7, 1.9),
    Sketcher.Constraint("DistanceX", 0, 2, 0, 1, 14.0),
    Sketcher.Constraint("Radius", 1, 0.38),
    Sketcher.Constraint("DistanceY", 6, 1, 6, 2, 2.5),
    Sketcher.Constraint("DistanceX", 2, 3, -1, 1, 5.0),
    Sketcher.Constraint("DistanceY", 4, 1, -1, 1, 1.0),
    Sketcher.Constraint("DistanceY", 3, 3, 1, 3, 3.0),
    Sketcher.Constraint("DistanceY", 4, 3, 7, 3, 1.0),
])
pad5 = body.newObject("PartDesign::Pad", "Pad004")
pad5.Profile = sketch10
pad5.Length = 4.3
pad5.Reversed = True

sketch11 = body.newObject("Sketcher::SketchObject", "Sketch010")
sketch11.AttachmentSupport = (doc.getObject("XZ_Plane"), [""])
sketch11.MapMode = "FlatFace"
sketch11.AttachmentOffset = App.Placement(Vector(0, 0, -3.5), App.Rotation())
sketch11.addGeometry([
    Part.LineSegment(Vector(3.13, 0.8, 0), Vector(3.13, 3, 0)),
    Part.LineSegment(Vector(3.13, 3, 0), Vector(3.93, 3, 0)),
    Part.LineSegment(Vector(3.93, 3, 0), Vector(3.93, 0.8, 0)),
    Part.LineSegment(Vector(3.93, 0.8, 0), Vector(3.13, 0.8, 0)),
], False)
sketch11.addConstraint([
    Sketcher.Constraint("Coincident", 0, 2, 1, 1),
    Sketcher.Constraint("Coincident", 1, 2, 2, 1),
    Sketcher.Constraint("Coincident", 2, 2, 3, 1),
    Sketcher.Constraint("Coincident", 3, 2, 0, 1),
    Sketcher.Constraint("Vertical", 0),
    Sketcher.Constraint("Horizontal", 1),
    Sketcher.Constraint("Vertical", 2),
    Sketcher.Constraint("Horizontal", 3),
    Sketcher.Constraint("DistanceX", 1, 1, 1, 2, 0.8),
    Sketcher.Constraint("DistanceY", 0, 1, 0, 2, 2.2),
    Sketcher.Constraint("DistanceY", -1, 1, 0, 2, 3.0),
    Sketcher.Constraint("DistanceX", -1, 1, 0, 2, 3.13),
])
pocket5 = body.newObject("PartDesign::Pocket", "Pocket004")
pocket5.Profile = sketch11
pocket5.Length = 5
pocket5.Reversed = True
doc.recompute()

mirrored = body.newObject("PartDesign::Mirrored", "Mirrored")
mirrored.Originals = [pocket5]
mirrored.MirrorPlane = (doc.getObject("YZ_Plane"), [""])
body.Tip = mirrored

doc.recompute()
